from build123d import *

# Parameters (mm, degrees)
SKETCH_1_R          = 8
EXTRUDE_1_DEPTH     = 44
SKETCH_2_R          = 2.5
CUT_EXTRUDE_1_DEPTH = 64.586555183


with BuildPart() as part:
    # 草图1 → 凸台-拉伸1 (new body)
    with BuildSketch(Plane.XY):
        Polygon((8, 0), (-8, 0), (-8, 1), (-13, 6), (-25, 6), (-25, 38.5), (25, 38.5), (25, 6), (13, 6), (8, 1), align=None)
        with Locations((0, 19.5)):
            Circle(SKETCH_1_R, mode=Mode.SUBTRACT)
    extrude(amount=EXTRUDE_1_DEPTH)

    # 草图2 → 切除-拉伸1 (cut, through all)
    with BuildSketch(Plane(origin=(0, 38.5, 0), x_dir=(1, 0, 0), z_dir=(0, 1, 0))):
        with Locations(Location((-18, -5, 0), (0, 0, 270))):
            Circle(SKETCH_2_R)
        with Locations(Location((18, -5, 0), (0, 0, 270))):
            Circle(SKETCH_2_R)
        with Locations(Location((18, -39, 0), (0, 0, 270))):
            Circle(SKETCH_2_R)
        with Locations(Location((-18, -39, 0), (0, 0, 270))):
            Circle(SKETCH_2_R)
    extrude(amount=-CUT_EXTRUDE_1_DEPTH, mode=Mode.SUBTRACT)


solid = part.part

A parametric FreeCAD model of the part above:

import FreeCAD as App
import Part
import Sketcher

doc = App.newDocument("Part")
params = doc.addObject("Spreadsheet::Sheet", "Params")
for row, (alias, value) in enumerate([
    ("sketch1_diameter", "16 mm"),
    ("sketch1_width", "16 mm"),
    ("sketch1_width2", "12 mm"),
    ("sketch1_width3", "50 mm"),
    ("sketch1_height", "1 mm"),
    ("pad1_length", "44 mm"),
    ("sketch2_diameter", "5 mm"),
], start=1):
    params.set(f"A{row}", alias)
    params.set(f"B{row}", "=" + value)
    params.setAlias(f"B{row}", alias)

body = doc.addObject("PartDesign::Body", "Body")

# Sketch on XY plane
sketch1 = body.newObject("Sketcher::SketchObject", "Sketch")
sketch1.AttachmentSupport = (doc.getObject("XY_Plane"), [""])
sketch1.MapMode = "FlatFace"
sketch1.addGeometry(Part.LineSegment(App.Vector(-8, 0, 0), App.Vector(8, 0, 0)), False)
sketch1.addGeometry(Part.LineSegment(App.Vector(8, 0, 0), App.Vector(8, 1, 0)), False)
sketch1.addGeometry(Part.LineSegment(App.Vector(8, 1, 0), App.Vector(13, 6, 0)), False)
sketch1.addGeometry(Part.LineSegment(App.Vector(13, 6, 0), App.Vector(25, 6, 0)), False)
sketch1.addGeometry(Part.LineSegment(App.Vector(25, 6, 0), App.Vector(25, 38.5, 0)), False)
sketch1.addGeometry(Part.LineSegment(App.Vector(25, 38.5, 0), App.Vector(-25, 38.5, 0)), False)
sketch1.addGeometry(Part.LineSegment(App.Vector(-25, 38.5, 0), App.Vector(-25, 6, 0)), False)
sketch1.addGeometry(Part.LineSegment(App.Vector(-25, 6, 0), App.Vector(-13, 6, 0)), False)
sketch1.addGeometry(Part.LineSegment(App.Vector(-13, 6, 0), App.Vector(-8, 1, 0)), False)
sketch1.addGeometry(Part.LineSegment(App.Vector(-8, 1, 0), App.Vector(-8, 0, 0)), False)
sketch1.addGeometry(Part.Circle(App.Vector(0, 19.5, 0), App.Vector(0, 0, 1), 8), False)
sketch1.addConstraint(Sketcher.Constraint("Coincident", 0, 2, 1, 1))
sketch1.addConstraint(Sketcher.Constraint("Coincident", 1, 2, 2, 1))
sketch1.addConstraint(Sketcher.Constraint("Coincident", 2, 2, 3, 1))
sketch1.addConstraint(Sketcher.Constraint("Coincident", 3, 2, 4, 1))
sketch1.addConstraint(Sketcher.Constraint("Coincident", 4, 2, 5, 1))
sketch1.addConstraint(Sketcher.Constraint("Coincident", 5, 2, 6, 1))
sketch1.addConstraint(Sketcher.Constraint("Coincident", 6, 2, 7, 1))
sketch1.addConstraint(Sketcher.Constraint("Coincident", 7, 2, 8, 1))
sketch1.addConstraint(Sketcher.Constraint("Coincident", 8, 2, 9, 1))
sketch1.addConstraint(Sketcher.Constraint("Coincident", 9, 2, 0, 1))
sketch1.addConstraint(Sketcher.Constraint("Horizontal", 0))
sketch1.addConstraint(Sketcher.Constraint("Vertical", 1))
sketch1.addConstraint(Sketcher.Constraint("Horizontal", 3))
sketch1.addConstraint(Sketcher.Constraint("Vertical", 4))
sketch1.addConstraint(Sketcher.Constraint("Horizontal", 5))
sketch1.addConstraint(Sketcher.Constraint("Vertical", 6))
sketch1.addConstraint(Sketcher.Constraint("Horizontal", 7))
sketch1.addConstraint(Sketcher.Constraint("Vertical", 9))
sketch1.addConstraint(Sketcher.Constraint("Symmetric", 0, 2, 9, 2, -1, 1))
sketch1.addConstraint(Sketcher.Constraint("Symmetric", 3, 2, 6, 2, -2))
sketch1.addConstraint(Sketcher.Constraint("PointOnObject", 10, 3, -2))
sketch1.addConstraint(Sketcher.Constraint("Perpendicular", 2, 8))
sketch1.addConstraint(Sketcher.Constraint("Horizontal", 1, 2, 8, 2))
sketch1.addConstraint(Sketcher.Constraint("Equal", 3, 7))
sketch1.addConstraint(Sketcher.Constraint("Diameter", 10, 16.0))
sketch1.addConstraint(Sketcher.Constraint("DistanceX", 0, 1, 0, 2, 16.0))
sketch1.addConstraint(Sketcher.Constraint("DistanceX", 3, 1, 3, 2, 12.0))
sketch1.addConstraint(Sketcher.Constraint("DistanceX", 5, 2, 5, 1, 50.0))
sketch1.addConstraint(Sketcher.Constraint("DistanceY", 1, 1, 1, 2, 1.0))
sketch1.addConstraint(Sketcher.Constraint("DistanceY", 4, 1, 4, 2, 32.5))
sketch1.addConstraint(Sketcher.Constraint("DistanceY", 10, 3, 4, 2, 19.0))
sketch1.setExpression("Constraints[24]", "Params.sketch1_diameter")
sketch1.setExpression("Constraints[25]", "Params.sketch1_width")
sketch1.setExpression("Constraints[26]", "Params.sketch1_width2")
sketch1.setExpression("Constraints[27]", "Params.sketch1_width3")
sketch1.setExpression("Constraints[28]", "Params.sketch1_height")
pad1 = body.newObject("PartDesign::Pad", "Pad")
pad1.Profile = sketch1
pad1.setExpression("Length", "Params.pad1_length")

# Sketch on XZ plane
sketch2 = body.newObject("Sketcher::SketchObject", "Sketch001")
sketch2.AttachmentSupport = (doc.getObject("XZ_Plane"), [""])
sketch2.MapMode = "FlatFace"
sketch2.AttachmentOffset = App.Placement(App.Vector(0, 0, -38.5), App.Rotation())
sketch2.addGeometry(Part.Circle(App.Vector(-18, 5, 0), App.Vector(0, 0, 1), 2.5), False)
sketch2.addGeometry(Part.Circle(App.Vector(18, 5, 0), App.Vector(0, 0, 1), 2.5), False)
sketch2.addGeometry(Part.Circle(App.Vector(18, 39, 0), App.Vector(0, 0, 1), 2.5), False)
sketch2.addGeometry(Part.Circle(App.Vector(-18, 39, 0), App.Vector(0, 0, 1), 2.5), False)
sketch2.addConstraint(Sketcher.Constraint("Equal", 0, 1))
sketch2.addConstraint(Sketcher.Constraint("Equal", 1, 2))
sketch2.addConstraint(Sketcher.Constraint("Equal", 2, 3))
sketch2.addConstraint(Sketcher.Constraint("Symmetric", 0, 3, 1, 3, -2))
sketch2.addConstraint(Sketcher.Constraint("Symmetric", 2, 3, 3, 3, -2))
sketch2.addConstraint(Sketcher.Constraint("Vertical", 1, 3, 2, 3))
sketch2.addConstraint(Sketcher.Constraint("Diameter", 0, 5.0))
sketch2.addConstraint(Sketcher.Constraint("DistanceX", 0, 3, -1, 1, 18.0))
sketch2.addConstraint(Sketcher.Constraint("DistanceY", -1, 1, 0, 3, 5.0))
sketch2.addConstraint(Sketcher.Constraint("DistanceY", -1, 1, 2, 3, 39.0))
sketch2.setExpression("Constraints[6]", "Params.sketch2_diameter")
pocket1 = body.newObject("PartDesign::Pocket", "Pocket")
pocket1.Profile = sketch2
pocket1.Type = "ThroughAll"
pocket1.Reversed = True

doc.recompute()
